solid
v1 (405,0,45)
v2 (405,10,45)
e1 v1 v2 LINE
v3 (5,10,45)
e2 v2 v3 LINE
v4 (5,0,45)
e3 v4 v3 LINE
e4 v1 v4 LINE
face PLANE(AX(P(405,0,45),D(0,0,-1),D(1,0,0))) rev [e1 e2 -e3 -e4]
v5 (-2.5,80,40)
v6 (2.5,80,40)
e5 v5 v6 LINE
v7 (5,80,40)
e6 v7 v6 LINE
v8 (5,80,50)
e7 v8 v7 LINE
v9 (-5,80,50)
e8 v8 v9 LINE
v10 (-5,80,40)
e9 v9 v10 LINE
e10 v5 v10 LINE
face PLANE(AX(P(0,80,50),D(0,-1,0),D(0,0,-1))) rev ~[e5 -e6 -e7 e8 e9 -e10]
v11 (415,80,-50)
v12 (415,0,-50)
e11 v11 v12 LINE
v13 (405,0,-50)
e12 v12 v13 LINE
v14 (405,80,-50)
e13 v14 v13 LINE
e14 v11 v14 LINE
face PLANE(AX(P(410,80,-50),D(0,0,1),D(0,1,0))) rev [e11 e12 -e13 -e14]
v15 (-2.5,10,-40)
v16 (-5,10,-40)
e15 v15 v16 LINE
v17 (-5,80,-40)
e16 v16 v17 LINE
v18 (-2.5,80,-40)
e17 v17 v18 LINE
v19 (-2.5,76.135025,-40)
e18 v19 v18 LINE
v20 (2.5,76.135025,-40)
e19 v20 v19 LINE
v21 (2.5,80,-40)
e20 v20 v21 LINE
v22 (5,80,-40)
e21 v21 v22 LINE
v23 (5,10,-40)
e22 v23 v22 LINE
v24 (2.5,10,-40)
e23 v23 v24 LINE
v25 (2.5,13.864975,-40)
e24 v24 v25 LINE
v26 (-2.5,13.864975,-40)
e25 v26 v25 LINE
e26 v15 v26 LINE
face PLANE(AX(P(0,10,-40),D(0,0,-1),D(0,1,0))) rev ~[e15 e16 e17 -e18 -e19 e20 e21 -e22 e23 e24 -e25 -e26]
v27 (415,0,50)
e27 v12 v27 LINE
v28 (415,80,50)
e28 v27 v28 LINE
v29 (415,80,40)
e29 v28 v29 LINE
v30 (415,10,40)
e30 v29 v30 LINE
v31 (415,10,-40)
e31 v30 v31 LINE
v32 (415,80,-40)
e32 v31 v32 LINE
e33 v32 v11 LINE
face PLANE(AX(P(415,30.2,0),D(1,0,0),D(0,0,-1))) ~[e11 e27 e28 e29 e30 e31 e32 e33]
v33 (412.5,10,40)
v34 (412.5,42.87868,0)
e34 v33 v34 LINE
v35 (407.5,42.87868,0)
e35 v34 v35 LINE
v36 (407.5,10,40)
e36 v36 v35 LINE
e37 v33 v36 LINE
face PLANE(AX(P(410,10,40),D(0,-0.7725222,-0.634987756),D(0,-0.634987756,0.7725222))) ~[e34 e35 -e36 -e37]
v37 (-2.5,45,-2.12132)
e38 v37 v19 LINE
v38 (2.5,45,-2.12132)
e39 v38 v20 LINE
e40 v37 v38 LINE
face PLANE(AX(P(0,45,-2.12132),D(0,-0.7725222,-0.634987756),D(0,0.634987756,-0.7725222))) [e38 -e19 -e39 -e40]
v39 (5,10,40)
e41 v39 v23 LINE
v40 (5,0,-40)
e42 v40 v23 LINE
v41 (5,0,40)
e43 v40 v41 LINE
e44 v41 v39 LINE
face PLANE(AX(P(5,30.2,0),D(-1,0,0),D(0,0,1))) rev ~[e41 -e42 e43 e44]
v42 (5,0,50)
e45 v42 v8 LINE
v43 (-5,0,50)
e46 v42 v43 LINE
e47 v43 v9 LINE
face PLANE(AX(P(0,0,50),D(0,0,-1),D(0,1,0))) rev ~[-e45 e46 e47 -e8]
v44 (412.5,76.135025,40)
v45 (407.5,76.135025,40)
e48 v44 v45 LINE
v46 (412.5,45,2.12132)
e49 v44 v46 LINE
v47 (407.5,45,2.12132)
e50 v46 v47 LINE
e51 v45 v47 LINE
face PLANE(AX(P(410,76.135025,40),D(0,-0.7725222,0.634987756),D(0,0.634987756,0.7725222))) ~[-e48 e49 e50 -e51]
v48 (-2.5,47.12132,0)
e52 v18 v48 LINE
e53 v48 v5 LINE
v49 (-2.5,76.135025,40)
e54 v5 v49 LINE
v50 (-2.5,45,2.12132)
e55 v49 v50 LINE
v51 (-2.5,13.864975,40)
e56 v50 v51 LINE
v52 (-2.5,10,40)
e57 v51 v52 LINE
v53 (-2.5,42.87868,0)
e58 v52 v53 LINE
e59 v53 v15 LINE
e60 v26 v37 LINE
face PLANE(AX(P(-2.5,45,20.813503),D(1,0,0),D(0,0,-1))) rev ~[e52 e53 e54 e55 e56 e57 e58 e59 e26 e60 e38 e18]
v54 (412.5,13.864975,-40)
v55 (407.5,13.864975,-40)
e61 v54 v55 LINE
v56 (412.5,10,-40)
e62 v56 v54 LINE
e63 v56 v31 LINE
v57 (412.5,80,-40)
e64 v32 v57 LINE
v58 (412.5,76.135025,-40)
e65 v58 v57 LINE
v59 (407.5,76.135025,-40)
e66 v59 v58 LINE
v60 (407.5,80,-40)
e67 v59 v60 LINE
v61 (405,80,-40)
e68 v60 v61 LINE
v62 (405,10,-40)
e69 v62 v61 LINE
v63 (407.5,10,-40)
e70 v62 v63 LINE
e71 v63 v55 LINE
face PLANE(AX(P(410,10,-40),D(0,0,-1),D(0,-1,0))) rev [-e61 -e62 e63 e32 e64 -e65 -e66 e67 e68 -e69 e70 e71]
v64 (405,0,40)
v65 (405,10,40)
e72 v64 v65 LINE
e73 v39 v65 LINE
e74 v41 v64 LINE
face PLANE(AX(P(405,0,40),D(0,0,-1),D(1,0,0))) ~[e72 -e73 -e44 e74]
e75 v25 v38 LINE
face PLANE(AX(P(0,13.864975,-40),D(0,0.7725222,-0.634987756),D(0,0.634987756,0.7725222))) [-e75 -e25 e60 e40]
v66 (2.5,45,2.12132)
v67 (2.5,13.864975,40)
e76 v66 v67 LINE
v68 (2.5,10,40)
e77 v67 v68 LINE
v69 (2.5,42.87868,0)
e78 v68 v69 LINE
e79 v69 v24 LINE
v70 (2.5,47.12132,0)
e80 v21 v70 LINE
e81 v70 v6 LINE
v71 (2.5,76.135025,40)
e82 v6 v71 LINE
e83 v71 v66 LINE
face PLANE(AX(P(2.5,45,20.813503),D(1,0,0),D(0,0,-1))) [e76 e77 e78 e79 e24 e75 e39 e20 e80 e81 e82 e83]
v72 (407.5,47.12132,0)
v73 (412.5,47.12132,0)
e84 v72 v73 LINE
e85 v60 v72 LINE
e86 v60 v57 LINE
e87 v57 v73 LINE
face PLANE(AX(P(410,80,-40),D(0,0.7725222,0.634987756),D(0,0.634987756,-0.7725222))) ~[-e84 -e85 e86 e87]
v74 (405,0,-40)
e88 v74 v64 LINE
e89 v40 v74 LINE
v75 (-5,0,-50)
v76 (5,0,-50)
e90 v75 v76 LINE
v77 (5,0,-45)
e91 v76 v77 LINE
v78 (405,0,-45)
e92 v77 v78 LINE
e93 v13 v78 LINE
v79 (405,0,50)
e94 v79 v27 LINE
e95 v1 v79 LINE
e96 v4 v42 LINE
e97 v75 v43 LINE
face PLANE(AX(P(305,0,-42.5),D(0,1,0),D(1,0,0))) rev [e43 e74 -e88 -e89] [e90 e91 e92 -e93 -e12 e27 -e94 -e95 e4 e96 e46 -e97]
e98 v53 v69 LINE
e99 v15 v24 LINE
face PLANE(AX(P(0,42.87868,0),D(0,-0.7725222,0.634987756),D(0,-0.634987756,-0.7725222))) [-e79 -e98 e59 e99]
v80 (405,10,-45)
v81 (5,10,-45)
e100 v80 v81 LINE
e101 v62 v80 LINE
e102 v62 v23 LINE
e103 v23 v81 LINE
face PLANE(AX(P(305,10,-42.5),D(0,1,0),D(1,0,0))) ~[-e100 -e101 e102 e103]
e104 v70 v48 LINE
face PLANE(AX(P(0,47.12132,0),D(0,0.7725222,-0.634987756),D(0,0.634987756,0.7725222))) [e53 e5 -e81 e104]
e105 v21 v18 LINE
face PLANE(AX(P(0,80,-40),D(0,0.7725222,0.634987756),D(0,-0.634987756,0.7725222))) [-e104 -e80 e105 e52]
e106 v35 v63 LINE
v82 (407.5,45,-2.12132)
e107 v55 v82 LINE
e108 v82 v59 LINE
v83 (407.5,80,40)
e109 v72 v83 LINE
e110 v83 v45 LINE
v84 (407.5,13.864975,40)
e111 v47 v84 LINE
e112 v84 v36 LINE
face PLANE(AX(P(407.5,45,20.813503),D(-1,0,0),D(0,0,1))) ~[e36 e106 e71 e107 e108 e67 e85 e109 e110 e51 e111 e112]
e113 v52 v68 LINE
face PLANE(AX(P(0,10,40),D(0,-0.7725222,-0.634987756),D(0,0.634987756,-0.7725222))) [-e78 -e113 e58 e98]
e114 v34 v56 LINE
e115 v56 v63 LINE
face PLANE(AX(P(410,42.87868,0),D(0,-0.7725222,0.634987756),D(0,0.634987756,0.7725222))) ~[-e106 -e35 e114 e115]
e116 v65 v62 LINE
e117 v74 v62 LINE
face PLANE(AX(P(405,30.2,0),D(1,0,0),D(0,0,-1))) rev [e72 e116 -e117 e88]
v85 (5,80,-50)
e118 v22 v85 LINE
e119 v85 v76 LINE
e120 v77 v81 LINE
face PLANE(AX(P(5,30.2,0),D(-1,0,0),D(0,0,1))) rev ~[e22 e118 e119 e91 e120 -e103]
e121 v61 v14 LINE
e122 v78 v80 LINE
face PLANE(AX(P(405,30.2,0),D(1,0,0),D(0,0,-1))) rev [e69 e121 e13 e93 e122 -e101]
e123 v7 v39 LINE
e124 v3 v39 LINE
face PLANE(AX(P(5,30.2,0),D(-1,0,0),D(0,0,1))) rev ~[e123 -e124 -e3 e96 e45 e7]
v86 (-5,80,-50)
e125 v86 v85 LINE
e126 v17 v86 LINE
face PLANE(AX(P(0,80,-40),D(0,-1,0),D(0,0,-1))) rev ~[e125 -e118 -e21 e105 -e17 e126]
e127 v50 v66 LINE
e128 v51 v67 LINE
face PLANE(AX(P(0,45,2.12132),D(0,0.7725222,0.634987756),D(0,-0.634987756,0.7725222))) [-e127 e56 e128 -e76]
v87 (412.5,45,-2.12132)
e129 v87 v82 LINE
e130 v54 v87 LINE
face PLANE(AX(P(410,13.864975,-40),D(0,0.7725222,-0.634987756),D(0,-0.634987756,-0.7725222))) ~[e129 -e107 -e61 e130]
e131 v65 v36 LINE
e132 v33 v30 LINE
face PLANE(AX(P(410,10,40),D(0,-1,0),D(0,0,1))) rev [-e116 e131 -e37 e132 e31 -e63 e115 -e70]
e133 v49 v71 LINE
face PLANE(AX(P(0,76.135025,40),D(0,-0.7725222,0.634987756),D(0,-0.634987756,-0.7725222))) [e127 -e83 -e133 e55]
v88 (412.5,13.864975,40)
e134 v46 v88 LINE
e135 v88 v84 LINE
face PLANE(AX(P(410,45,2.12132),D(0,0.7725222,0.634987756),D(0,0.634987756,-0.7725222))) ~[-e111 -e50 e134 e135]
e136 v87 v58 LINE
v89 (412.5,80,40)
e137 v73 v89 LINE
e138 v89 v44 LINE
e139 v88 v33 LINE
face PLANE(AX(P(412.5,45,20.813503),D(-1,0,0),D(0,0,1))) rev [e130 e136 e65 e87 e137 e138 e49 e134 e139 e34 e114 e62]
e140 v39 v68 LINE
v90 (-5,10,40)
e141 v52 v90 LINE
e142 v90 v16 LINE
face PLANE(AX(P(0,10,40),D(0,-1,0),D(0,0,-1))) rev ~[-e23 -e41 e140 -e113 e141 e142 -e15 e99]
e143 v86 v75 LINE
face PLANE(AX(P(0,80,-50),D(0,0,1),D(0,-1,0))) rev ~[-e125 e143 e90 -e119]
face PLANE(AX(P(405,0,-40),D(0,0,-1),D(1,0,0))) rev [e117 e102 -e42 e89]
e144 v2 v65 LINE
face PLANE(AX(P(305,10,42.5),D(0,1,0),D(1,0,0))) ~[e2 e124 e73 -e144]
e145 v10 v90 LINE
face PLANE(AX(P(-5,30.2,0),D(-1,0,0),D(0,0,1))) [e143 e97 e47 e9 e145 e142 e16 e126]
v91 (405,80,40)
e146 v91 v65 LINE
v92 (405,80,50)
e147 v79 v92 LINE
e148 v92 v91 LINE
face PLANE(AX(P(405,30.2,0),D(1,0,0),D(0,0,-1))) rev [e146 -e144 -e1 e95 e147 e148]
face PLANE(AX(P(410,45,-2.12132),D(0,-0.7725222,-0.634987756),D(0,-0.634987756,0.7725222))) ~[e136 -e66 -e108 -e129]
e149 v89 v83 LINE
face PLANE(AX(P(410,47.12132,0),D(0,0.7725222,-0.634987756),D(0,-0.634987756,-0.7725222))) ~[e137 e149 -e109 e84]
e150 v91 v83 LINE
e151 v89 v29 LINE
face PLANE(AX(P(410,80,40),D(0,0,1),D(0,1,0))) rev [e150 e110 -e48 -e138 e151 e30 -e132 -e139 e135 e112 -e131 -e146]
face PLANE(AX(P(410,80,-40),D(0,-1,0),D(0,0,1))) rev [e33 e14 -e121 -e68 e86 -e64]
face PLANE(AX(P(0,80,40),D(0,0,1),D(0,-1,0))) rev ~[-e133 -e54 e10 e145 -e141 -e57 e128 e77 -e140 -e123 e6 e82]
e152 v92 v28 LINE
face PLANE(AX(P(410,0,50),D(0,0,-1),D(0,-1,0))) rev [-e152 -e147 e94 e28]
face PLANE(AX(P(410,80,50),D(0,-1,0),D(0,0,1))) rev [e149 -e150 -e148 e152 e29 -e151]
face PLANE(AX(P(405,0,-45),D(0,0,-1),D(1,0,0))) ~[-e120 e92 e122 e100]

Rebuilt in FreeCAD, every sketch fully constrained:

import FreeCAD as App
import Part
import Sketcher

V = App.Vector

doc = App.newDocument("Part")
body = doc.addObject("PartDesign::Body", "Body")

sketch1 = body.newObject("Sketcher::SketchObject", "Sketch")
sketch1.AttachmentSupport = (doc.getObject("YZ_Plane"), [""])
sketch1.MapMode = "FlatFace"
sketch1.addGeometry(Part.LineSegment(V(0, 50, 0), V(0, -50, 0)), False)
sketch1.addGeometry(Part.LineSegment(V(0, -50, 0), V(80, -50, 0)), False)
sketch1.addGeometry(Part.LineSegment(V(80, -50, 0), V(80, -40, 0)), False)
sketch1.addGeometry(Part.LineSegment(V(80, -40, 0), V(10, -40, 0)), False)
sketch1.addGeometry(Part.LineSegment(V(10, -40, 0), V(10, 40, 0)), False)
sketch1.addGeometry(Part.LineSegment(V(10, 40, 0), V(80, 40, 0)), False)
sketch1.addGeometry(Part.LineSegment(V(80, 40, 0), V(80, 50, 0)), False)
sketch1.addGeometry(Part.LineSegment(V(80, 50, 0), V(0, 50, 0)), False)
sketch1.addConstraint(Sketcher.Constraint("Coincident", 0, 2, 1, 1))
sketch1.addConstraint(Sketcher.Constraint("Coincident", 1, 2, 2, 1))
sketch1.addConstraint(Sketcher.Constraint("Coincident", 2, 2, 3, 1))
sketch1.addConstraint(Sketcher.Constraint("Coincident", 3, 2, 4, 1))
sketch1.addConstraint(Sketcher.Constraint("Coincident", 4, 2, 5, 1))
sketch1.addConstraint(Sketcher.Constraint("Coincident", 5, 2, 6, 1))
sketch1.addConstraint(Sketcher.Constraint("Coincident", 6, 2, 7, 1))
sketch1.addConstraint(Sketcher.Constraint("Coincident", 7, 2, 0, 1))
sketch1.addConstraint(Sketcher.Constraint("Vertical", 0))
sketch1.addConstraint(Sketcher.Constraint("Horizontal", 1))
sketch1.addConstraint(Sketcher.Constraint("Vertical", 2))
sketch1.addConstraint(Sketcher.Constraint("Horizontal", 3))
sketch1.addConstraint(Sketcher.Constraint("Vertical", 4))
sketch1.addConstraint(Sketcher.Constraint("Horizontal", 5))
sketch1.addConstraint(Sketcher.Constraint("Vertical", 6))
sketch1.addConstraint(Sketcher.Constraint("Horizontal", 7))
sketch1.addConstraint(Sketcher.Constraint("Symmetric", 0, 2, 7, 2, -1, 1))
sketch1.addConstraint(Sketcher.Constraint("Symmetric", 2, 2, 5, 2, -1))
sketch1.addConstraint(Sketcher.Constraint("Equal", 7, 4))
sketch1.addConstraint(Sketcher.Constraint("DistanceX", 1, 1, 1, 2, 80.0))
sketch1.addConstraint(Sketcher.Constraint("DistanceX", 3, 2, 3, 1, 70.0))
sketch1.addConstraint(Sketcher.Constraint("DistanceY", 0, 2, 0, 1, 100.0))
pad1 = body.newObject("PartDesign::Pad", "Pad")
pad1.Profile = sketch1
pad1.Length = 10
pad1.Midplane = True

sketch2 = body.newObject("Sketcher::SketchObject", "Sketch001")
sketch2.AttachmentSupport = (doc.getObject("YZ_Plane"), [""])
sketch2.MapMode = "FlatFace"
sketch2.addGeometry(Part.LineSegment(V(47.1, 0, 0), V(80, 40, 0)), False)
sketch2.addGeometry(Part.LineSegment(V(80, 40, 0), V(76.1, 40, 0)), False)
sketch2.addGeometry(Part.LineSegment(V(76.1, 40, 0), V(45, 2.1, 0)), False)
sketch2.addGeometry(Part.LineSegment(V(45, 2.1, 0), V(13.9, 40, 0)), False)
sketch2.addGeometry(Part.LineSegment(V(13.9, 40, 0), V(10, 40, 0)), False)
sketch2.addGeometry(Part.LineSegment(V(10, 40, 0), V(42.9, 0, 0)), False)
sketch2.addGeometry(Part.LineSegment(V(42.9, 0, 0), V(10, -40, 0)), False)
sketch2.addGeometry(Part.LineSegment(V(10, -40, 0), V(13.9, -40, 0)), False)
sketch2.addGeometry(Part.LineSegment(V(13.9, -40, 0), V(45, -2.1, 0)), False)
sketch2.addGeometry(Part.LineSegment(V(45, -2.1, 0), V(76.1, -40, 0)), False)
sketch2.addGeometry(Part.LineSegment(V(76.1, -40, 0), V(80, -40, 0)), False)
sketch2.addGeometry(Part.LineSegment(V(80, -40, 0), V(47.1, 0, 0)), False)
sketch2.addConstraint(Sketcher.Constraint("Coincident", 0, 2, 1, 1))
sketch2.addConstraint(Sketcher.Constraint("Coincident", 1, 2, 2, 1))
sketch2.addConstraint(Sketcher.Constraint("Coincident", 2, 2, 3, 1))
sketch2.addConstraint(Sketcher.Constraint("Coincident", 3, 2, 4, 1))
sketch2.addConstraint(Sketcher.Constraint("Coincident", 4, 2, 5, 1))
sketch2.addConstraint(Sketcher.Constraint("Coincident", 5, 2, 6, 1))
sketch2.addConstraint(Sketcher.Constraint("Coincident", 6, 2, 7, 1))
sketch2.addConstraint(Sketcher.Constraint("Coincident", 7, 2, 8, 1))
sketch2.addConstraint(Sketcher.Constraint("Coincident", 8, 2, 9, 1))
sketch2.addConstraint(Sketcher.Constraint("Coincident", 9, 2, 10, 1))
sketch2.addConstraint(Sketcher.Constraint("Coincident", 10, 2, 11, 1))
sketch2.addConstraint(Sketcher.Constraint("Coincident", 11, 2, 0, 1))
sketch2.addConstraint(Sketcher.Constraint("Horizontal", 1))
sketch2.addConstraint(Sketcher.Constraint("Horizontal", 4))
sketch2.addConstraint(Sketcher.Constraint("Horizontal", 7))
sketch2.addConstraint(Sketcher.Constraint("Horizontal", 10))
sketch2.addConstraint(Sketcher.Constraint("Symmetric", 4, 2, 6, 2, -1))
sketch2.addConstraint(Sketcher.Constraint("Symmetric", 2, 2, 8, 2, -1))
sketch2.addConstraint(Sketcher.Constraint("Symmetric", 1, 2, 9, 2, -1))
sketch2.addConstraint(Sketcher.Constraint("PointOnObject", 5, 2, -1))
sketch2.addConstraint(Sketcher.Constraint("PointOnObject", 11, 2, -1))
sketch2.addConstraint(Sketcher.Constraint("Parallel", 0, 2))
sketch2.addConstraint(Sketcher.Constraint("Parallel", 3, 5))
sketch2.addConstraint(Sketcher.Constraint("Parallel", 2, 6))
sketch2.addConstraint(Sketcher.Constraint("Parallel", 6, 8))
sketch2.addConstraint(Sketcher.Constraint("Parallel", 9, 11))
sketch2.addConstraint(Sketcher.Constraint("Horizontal", 1, 2, 3, 2))
sketch2.addConstraint(Sketcher.Constraint("Equal", 1, 4))
sketch2.addConstraint(Sketcher.Constraint("DistanceX", -1, 1, 0, 2, 80.0))
sketch2.addConstraint(Sketcher.Constraint("DistanceY", -1, 1, 0, 2, 40.0))
sketch2.addConstraint(Sketcher.Constraint("DistanceX", -1, 1, 2, 2, 45.0))
sketch2.addConstraint(Sketcher.Constraint("Distance", 2, 49.032481))
sketch2.addConstraint(Sketcher.Constraint("DistanceX", 1, 2, 1, 1, 3.864975))
pad2 = body.newObject("PartDesign::Pad", "Pad001")
pad2.Profile = sketch2
pad2.Length = 5
pad2.Midplane = True

sketch3 = body.newObject("Sketcher::SketchObject", "Sketch002")
sketch3.AttachmentSupport = (doc.getObject("XZ_Plane"), [""])
sketch3.MapMode = "FlatFace"
sketch3.addGeometry(Part.LineSegment(V(5, -45, 0), V(5, -40, 0)), False)
sketch3.addGeometry(Part.LineSegment(V(5, -40, 0), V(205, -40, 0)), False)
sketch3.addGeometry(Part.LineSegment(V(205, -40, 0), V(205, -45, 0)), False)
sketch3.addGeometry(Part.LineSegment(V(205, -45, 0), V(5, -45, 0)), False)
sketch3.addGeometry(Part.LineSegment(V(5, 40, 0), V(5, 45, 0)), False)
sketch3.addGeometry(Part.LineSegment(V(5, 45, 0), V(205, 45, 0)), False)
sketch3.addGeometry(Part.LineSegment(V(205, 45, 0), V(205, 40, 0)), False)
sketch3.addGeometry(Part.LineSegment(V(205, 40, 0), V(5, 40, 0)), False)
sketch3.addConstraint(Sketcher.Constraint("Coincident", 0, 2, 1, 1))
sketch3.addConstraint(Sketcher.Constraint("Coincident", 1, 2, 2, 1))
sketch3.addConstraint(Sketcher.Constraint("Coincident", 2, 2, 3, 1))
sketch3.addConstraint(Sketcher.Constraint("Coincident", 3, 2, 0, 1))
sketch3.addConstraint(Sketcher.Constraint("Coincident", 4, 2, 5, 1))
sketch3.addConstraint(Sketcher.Constraint("Coincident", 5, 2, 6, 1))
sketch3.addConstraint(Sketcher.Constraint("Coincident", 6, 2, 7, 1))
sketch3.addConstraint(Sketcher.Constraint("Coincident", 7, 2, 4, 1))
sketch3.addConstraint(Sketcher.Constraint("Vertical", 0))
sketch3.addConstraint(Sketcher.Constraint("Horizontal", 1))
sketch3.addConstraint(Sketcher.Constraint("Vertical", 2))
sketch3.addConstraint(Sketcher.Constraint("Horizontal", 3))
sketch3.addConstraint(Sketcher.Constraint("Vertical", 4))
sketch3.addConstraint(Sketcher.Constraint("Horizontal", 5))
sketch3.addConstraint(Sketcher.Constraint("Vertical", 6))
sketch3.addConstraint(Sketcher.Constraint("Horizontal", 7))
sketch3.addConstraint(Sketcher.Constraint("Symmetric", 3, 2, 4, 2, -1))
sketch3.addConstraint(Sketcher.Constraint("Symmetric", 1, 2, 6, 2, -1))
sketch3.addConstraint(Sketcher.Constraint("DistanceX", 1, 1, 1, 2, 200.0))
sketch3.addConstraint(Sketcher.Constraint("DistanceY", 0, 1, 0, 2, 5.0))
sketch3.addConstraint(Sketcher.Constraint("DistanceX", -1, 1, 0, 2, 5.0))
sketch3.addConstraint(Sketcher.Constraint("DistanceY", 0, 2, -1, 1, 40.0))
pad3 = body.newObject("PartDesign::Pad", "Pad002")
pad3.Profile = sketch3
pad3.Length = 10
pad3.Reversed = True
body2 = doc.addObject("PartDesign::Body", "Body001")
doc.recompute()

body2.BaseFeature = body
doc.recompute()

mirroring = doc.addObject("Part::Mirroring", "Mirroring")
mirroring.Source = body
mirroring.Base = V(205, 10, 40)
mirroring.Normal = V(-1, 0, 0)
body3 = doc.addObject("PartDesign::Body", "Body002")
body3.BaseFeature = mirroring
boolean = body2.newObject("PartDesign::Boolean", "Boolean")
boolean.Type = "Fuse"
boolean.addObjects([body3])
doc.recompute()
mirroring.Visibility = False

doc.recompute()
